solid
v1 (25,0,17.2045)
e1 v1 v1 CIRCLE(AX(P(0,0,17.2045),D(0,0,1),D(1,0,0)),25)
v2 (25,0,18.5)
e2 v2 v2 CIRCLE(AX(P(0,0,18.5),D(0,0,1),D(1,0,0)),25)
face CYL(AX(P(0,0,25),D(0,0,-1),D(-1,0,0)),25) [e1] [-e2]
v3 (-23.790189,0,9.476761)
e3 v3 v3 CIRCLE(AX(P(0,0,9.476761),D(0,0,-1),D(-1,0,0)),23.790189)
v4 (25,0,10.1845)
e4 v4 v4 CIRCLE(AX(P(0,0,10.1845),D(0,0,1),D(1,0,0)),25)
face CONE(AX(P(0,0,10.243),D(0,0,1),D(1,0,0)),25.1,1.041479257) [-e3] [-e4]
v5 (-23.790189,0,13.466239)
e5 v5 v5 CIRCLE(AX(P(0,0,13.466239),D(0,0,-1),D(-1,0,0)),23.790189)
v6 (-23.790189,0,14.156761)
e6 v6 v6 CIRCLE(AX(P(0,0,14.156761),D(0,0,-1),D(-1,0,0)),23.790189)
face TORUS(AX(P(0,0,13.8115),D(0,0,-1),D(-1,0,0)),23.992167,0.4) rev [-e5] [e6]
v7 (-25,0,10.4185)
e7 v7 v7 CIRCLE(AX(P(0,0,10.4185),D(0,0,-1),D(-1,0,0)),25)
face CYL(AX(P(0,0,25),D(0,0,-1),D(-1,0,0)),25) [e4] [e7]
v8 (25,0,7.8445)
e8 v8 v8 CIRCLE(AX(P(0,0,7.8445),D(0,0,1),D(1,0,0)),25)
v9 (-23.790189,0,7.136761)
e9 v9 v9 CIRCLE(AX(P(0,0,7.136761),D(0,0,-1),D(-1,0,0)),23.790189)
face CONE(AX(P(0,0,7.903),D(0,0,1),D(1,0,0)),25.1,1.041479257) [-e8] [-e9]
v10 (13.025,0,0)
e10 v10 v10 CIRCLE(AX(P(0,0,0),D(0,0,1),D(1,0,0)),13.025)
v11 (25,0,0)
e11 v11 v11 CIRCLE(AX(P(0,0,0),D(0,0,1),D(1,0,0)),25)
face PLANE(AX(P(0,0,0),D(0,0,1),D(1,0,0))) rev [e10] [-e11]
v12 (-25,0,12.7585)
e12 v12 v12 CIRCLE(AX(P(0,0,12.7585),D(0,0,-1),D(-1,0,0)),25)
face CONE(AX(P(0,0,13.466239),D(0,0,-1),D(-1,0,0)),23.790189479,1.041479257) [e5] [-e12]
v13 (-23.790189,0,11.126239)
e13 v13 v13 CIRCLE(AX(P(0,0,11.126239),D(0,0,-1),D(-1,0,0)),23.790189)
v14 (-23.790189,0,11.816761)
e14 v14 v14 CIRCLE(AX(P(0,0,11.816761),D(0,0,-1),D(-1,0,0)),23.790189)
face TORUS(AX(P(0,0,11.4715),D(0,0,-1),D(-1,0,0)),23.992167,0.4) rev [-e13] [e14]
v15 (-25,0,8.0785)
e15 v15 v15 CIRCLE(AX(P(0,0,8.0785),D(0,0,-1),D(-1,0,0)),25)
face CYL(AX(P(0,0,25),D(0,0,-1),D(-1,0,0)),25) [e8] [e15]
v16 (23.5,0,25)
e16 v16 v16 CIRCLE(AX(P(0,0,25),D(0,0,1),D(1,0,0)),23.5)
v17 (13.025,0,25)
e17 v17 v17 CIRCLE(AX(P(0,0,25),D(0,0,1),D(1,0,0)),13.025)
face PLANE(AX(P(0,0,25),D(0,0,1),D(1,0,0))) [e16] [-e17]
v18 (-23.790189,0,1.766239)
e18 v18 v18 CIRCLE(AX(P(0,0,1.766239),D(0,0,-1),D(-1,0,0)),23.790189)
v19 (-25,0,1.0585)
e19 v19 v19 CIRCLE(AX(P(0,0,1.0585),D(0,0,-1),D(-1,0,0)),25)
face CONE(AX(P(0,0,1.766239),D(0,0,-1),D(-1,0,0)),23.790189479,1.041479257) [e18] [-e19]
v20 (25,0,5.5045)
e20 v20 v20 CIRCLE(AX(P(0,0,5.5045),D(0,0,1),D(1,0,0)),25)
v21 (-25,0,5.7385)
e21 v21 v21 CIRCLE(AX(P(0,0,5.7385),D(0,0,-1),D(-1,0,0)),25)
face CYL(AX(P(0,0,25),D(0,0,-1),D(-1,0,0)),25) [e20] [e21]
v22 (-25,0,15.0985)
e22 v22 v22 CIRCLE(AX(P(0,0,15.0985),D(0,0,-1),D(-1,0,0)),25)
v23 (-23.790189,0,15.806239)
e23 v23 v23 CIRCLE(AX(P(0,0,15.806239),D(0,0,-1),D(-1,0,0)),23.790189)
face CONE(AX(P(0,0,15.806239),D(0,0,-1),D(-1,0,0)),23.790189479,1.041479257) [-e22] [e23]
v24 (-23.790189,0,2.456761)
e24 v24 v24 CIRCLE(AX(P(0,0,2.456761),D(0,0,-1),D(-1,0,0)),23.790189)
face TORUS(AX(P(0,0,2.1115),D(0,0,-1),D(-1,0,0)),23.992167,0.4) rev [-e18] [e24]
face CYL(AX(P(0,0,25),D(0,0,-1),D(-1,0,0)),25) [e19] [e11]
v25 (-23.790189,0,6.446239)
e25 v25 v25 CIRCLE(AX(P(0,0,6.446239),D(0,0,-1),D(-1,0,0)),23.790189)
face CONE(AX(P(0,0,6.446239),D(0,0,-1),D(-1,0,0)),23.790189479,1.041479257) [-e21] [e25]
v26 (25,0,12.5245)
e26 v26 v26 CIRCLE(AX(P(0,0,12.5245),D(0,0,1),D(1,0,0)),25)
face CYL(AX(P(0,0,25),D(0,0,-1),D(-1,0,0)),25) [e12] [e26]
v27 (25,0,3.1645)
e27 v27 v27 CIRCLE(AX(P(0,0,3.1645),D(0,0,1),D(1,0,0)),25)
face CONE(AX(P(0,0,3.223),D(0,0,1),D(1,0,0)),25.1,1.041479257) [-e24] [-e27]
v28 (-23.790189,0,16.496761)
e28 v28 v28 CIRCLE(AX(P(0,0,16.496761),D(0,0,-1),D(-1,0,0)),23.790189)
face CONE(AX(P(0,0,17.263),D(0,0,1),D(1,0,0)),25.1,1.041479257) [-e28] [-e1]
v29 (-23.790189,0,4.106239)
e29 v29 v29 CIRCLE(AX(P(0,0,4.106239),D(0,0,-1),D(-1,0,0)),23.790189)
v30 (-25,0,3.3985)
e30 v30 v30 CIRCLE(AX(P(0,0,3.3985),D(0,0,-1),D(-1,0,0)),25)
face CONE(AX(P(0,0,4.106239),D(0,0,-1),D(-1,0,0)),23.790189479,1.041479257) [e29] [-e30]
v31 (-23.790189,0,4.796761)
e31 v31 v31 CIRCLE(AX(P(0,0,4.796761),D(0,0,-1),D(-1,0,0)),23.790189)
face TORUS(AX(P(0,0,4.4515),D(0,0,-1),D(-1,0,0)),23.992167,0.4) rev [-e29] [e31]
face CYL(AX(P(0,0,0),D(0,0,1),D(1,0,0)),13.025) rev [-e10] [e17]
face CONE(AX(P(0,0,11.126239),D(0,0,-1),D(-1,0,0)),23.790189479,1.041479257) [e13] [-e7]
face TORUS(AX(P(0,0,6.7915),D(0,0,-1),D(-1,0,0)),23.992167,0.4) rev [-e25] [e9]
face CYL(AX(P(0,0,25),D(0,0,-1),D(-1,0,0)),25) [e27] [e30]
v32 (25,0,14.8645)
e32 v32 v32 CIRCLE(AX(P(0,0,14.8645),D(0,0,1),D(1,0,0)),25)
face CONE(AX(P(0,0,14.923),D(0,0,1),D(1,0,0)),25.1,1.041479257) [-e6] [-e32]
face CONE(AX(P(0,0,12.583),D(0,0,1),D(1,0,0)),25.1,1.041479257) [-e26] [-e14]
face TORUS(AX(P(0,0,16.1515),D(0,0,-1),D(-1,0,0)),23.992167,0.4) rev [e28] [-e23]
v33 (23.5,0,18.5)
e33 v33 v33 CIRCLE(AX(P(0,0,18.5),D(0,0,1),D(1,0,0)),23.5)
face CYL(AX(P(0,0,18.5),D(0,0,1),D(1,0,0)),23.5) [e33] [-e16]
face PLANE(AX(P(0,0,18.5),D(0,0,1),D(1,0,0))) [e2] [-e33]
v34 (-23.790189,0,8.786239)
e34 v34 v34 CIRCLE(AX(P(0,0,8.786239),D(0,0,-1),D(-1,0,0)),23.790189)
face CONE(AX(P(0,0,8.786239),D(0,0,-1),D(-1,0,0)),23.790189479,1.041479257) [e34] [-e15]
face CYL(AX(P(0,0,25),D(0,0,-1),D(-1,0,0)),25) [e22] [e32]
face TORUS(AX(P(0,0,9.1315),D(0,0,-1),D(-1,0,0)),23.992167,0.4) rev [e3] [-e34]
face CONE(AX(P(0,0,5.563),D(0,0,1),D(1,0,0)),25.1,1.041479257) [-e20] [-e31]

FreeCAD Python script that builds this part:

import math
import FreeCAD as App
import Part
import Sketcher

doc = App.newDocument("Part")
body = doc.addObject("PartDesign::Body", "Body")

# Sketch on XY plane
sketch1 = doc.addObject("Sketcher::SketchObject", "Sketch")
body.addObject(sketch1)
sketch1.AttachmentSupport = (doc.XY_Plane, [""])
sketch1.MapMode = "FlatFace"
sketch1.addGeometry(Part.Circle(App.Vector(0, 0, 0), App.Vector(0, 0, 1), 25), False)
sketch1.addConstraint(Sketcher.Constraint("Coincident", 0, 3, -1, 1))
sketch1.addConstraint(Sketcher.Constraint("Diameter", 0, 50.0))
pad1 = doc.addObject("PartDesign::Pad", "Pad")
body.addObject(pad1)
pad1.Profile = sketch1
pad1.Length = 25

# Sketch on XY plane
sketch2 = doc.addObject("Sketcher::SketchObject", "Sketch001")
body.addObject(sketch2)
sketch2.AttachmentSupport = (doc.XY_Plane, [""])
sketch2.MapMode = "FlatFace"
sketch2.AttachmentOffset = App.Placement(App.Vector(0, 0, 25), App.Rotation())
sketch2.addGeometry(Part.Circle(App.Vector(0, 0, 0), App.Vector(0, 0, 1), 25), False)
sketch2.addGeometry(Part.Circle(App.Vector(0, 0, 0), App.Vector(0, 0, 1), 24), False)
sketch2.addConstraint(Sketcher.Constraint("Coincident", 0, 3, -1, 1))
sketch2.addConstraint(Sketcher.Constraint("Coincident", 1, 3, -1, 1))
sketch2.addConstraint(Sketcher.Constraint("Diameter", 0, 50.0))
sketch2.addConstraint(Sketcher.Constraint("Diameter", 1, 47.0))
pocket1 = doc.addObject("PartDesign::Pocket", "Pocket")
body.addObject(pocket1)
pocket1.Profile = sketch2
pocket1.Length = 6.5

# Sketch on XY plane
sketch3 = doc.addObject("Sketcher::SketchObject", "Sketch002")
body.addObject(sketch3)
sketch3.AttachmentSupport = (doc.XY_Plane, [""])
sketch3.MapMode = "FlatFace"
sketch3.AttachmentOffset = App.Placement(App.Vector(0, 0, 25), App.Rotation())
sketch3.addGeometry(Part.Circle(App.Vector(0, 0, 0), App.Vector(0, 0, 1), 13), False)
sketch3.addConstraint(Sketcher.Constraint("Coincident", 0, 3, -1, 1))
sketch3.addConstraint(Sketcher.Constraint("Diameter", 0, 26.05))
pocket2 = doc.addObject("PartDesign::Pocket", "Pocket001")
body.addObject(pocket2)
pocket2.Profile = sketch3
pocket2.Length = 25

# Sketch on YZ plane
sketch4 = doc.addObject("Sketcher::SketchObject", "Sketch003")
body.addObject(sketch4)
sketch4.AttachmentSupport = (doc.YZ_Plane, [""])
sketch4.MapMode = "FlatFace"
sketch4.addGeometry(Part.LineSegment(App.Vector(25.1, 1, 0), App.Vector(25.1, 3.22, 0)), False)
sketch4.addGeometry(Part.LineSegment(App.Vector(25.1, 3.22, 0), App.Vector(23.79, 2.46, 0)), False)
sketch4.addGeometry(Part.ArcOfCircle(Part.Circle(App.Vector(23.99, 2.11, 0), App.Vector(0, 0, 1), 0.4), math.radians(120), math.radians(240)), False)
sketch4.addGeometry(Part.LineSegment(App.Vector(23.79, 1.77, 0), App.Vector(25.1, 1, 0)), False)
sketch4.addGeometry(Part.LineSegment(App.Vector(25.1, 3.34, 0), App.Vector(25.1, 5.56, 0)), False)
sketch4.addGeometry(Part.LineSegment(App.Vector(25.1, 5.56, 0), App.Vector(23.79, 4.8, 0)), False)
sketch4.addGeometry(Part.ArcOfCircle(Part.Circle(App.Vector(23.99, 4.45, 0), App.Vector(0, 0, 1), 0.4), math.radians(120), math.radians(240)), False)
sketch4.addGeometry(Part.LineSegment(App.Vector(23.79, 4.11, 0), App.Vector(25.1, 3.34, 0)), False)
sketch4.addGeometry(Part.LineSegment(App.Vector(25.1, 5.68, 0), App.Vector(25.1, 7.9, 0)), False)
sketch4.addGeometry(Part.LineSegment(App.Vector(25.1, 7.9, 0), App.Vector(23.79, 7.14, 0)), False)
sketch4.addGeometry(Part.ArcOfCircle(Part.Circle(App.Vector(23.99, 6.79, 0), App.Vector(0, 0, 1), 0.4), math.radians(120), math.radians(240)), False)
sketch4.addGeometry(Part.LineSegment(App.Vector(23.79, 6.45, 0), App.Vector(25.1, 5.68, 0)), False)
sketch4.addGeometry(Part.LineSegment(App.Vector(25.1, 8.02, 0), App.Vector(25.1, 10.24, 0)), False)
sketch4.addGeometry(Part.LineSegment(App.Vector(25.1, 10.24, 0), App.Vector(23.79, 9.48, 0)), False)
sketch4.addGeometry(Part.ArcOfCircle(Part.Circle(App.Vector(23.99, 9.13, 0), App.Vector(0, 0, 1), 0.4), math.radians(120), math.radians(240)), False)
sketch4.addGeometry(Part.LineSegment(App.Vector(23.79, 8.79, 0), App.Vector(25.1, 8.02, 0)), False)
sketch4.addGeometry(Part.LineSegment(App.Vector(25.1, 10.36, 0), App.Vector(25.1, 12.58, 0)), False)
sketch4.addGeometry(Part.LineSegment(App.Vector(25.1, 12.58, 0), App.Vector(23.79, 11.82, 0)), False)
sketch4.addGeometry(Part.ArcOfCircle(Part.Circle(App.Vector(23.99, 11.47, 0), App.Vector(0, 0, 1), 0.4), math.radians(120), math.radians(240)), False)
sketch4.addGeometry(Part.LineSegment(App.Vector(23.79, 11.13, 0), App.Vector(25.1, 10.36, 0)), False)
sketch4.addGeometry(Part.LineSegment(App.Vector(25.1, 12.7, 0), App.Vector(25.1, 14.92, 0)), False)
sketch4.addGeometry(Part.LineSegment(App.Vector(25.1, 14.92, 0), App.Vector(23.79, 14.16, 0)), False)
sketch4.addGeometry(Part.ArcOfCircle(Part.Circle(App.Vector(23.99, 13.81, 0), App.Vector(0, 0, 1), 0.4), math.radians(120), math.radians(240)), False)
sketch4.addGeometry(Part.LineSegment(App.Vector(23.79, 13.47, 0), App.Vector(25.1, 12.7, 0)), False)
sketch4.addGeometry(Part.LineSegment(App.Vector(25.1, 15.04, 0), App.Vector(25.1, 17.26, 0)), False)
sketch4.addGeometry(Part.LineSegment(App.Vector(25.1, 17.26, 0), App.Vector(23.79, 16.5, 0)), False)
sketch4.addGeometry(Part.ArcOfCircle(Part.Circle(App.Vector(23.99, 16.15, 0), App.Vector(0, 0, 1), 0.4), math.radians(120), math.radians(240)), False)
sketch4.addGeometry(Part.LineSegment(App.Vector(23.79, 15.81, 0), App.Vector(25.1, 15.04, 0)), False)
sketch4.addConstraint(Sketcher.Constraint("Coincident", 0, 2, 1, 1))
sketch4.addConstraint(Sketcher.Constraint("Tangent", 1, 2, 2, 1))
sketch4.addConstraint(Sketcher.Constraint("Tangent", 2, 2, 3, 1))
sketch4.addConstraint(Sketcher.Constraint("Coincident", 3, 2, 0, 1))
sketch4.addConstraint(Sketcher.Constraint("Coincident", 4, 2, 5, 1))
sketch4.addConstraint(Sketcher.Constraint("Tangent", 5, 2, 6, 1))
sketch4.addConstraint(Sketcher.Constraint("Tangent", 6, 2, 7, 1))
sketch4.addConstraint(Sketcher.Constraint("Coincident", 7, 2, 4, 1))
sketch4.addConstraint(Sketcher.Constraint("Coincident", 8, 2, 9, 1))
sketch4.addConstraint(Sketcher.Constraint("Tangent", 9, 2, 10, 1))
sketch4.addConstraint(Sketcher.Constraint("Tangent", 10, 2, 11, 1))
sketch4.addConstraint(Sketcher.Constraint("Coincident", 11, 2, 8, 1))
sketch4.addConstraint(Sketcher.Constraint("Coincident", 12, 2, 13, 1))
sketch4.addConstraint(Sketcher.Constraint("Tangent", 13, 2, 14, 1))
sketch4.addConstraint(Sketcher.Constraint("Tangent", 14, 2, 15, 1))
sketch4.addConstraint(Sketcher.Constraint("Coincident", 15, 2, 12, 1))
sketch4.addConstraint(Sketcher.Constraint("Coincident", 16, 2, 17, 1))
sketch4.addConstraint(Sketcher.Constraint("Tangent", 17, 2, 18, 1))
sketch4.addConstraint(Sketcher.Constraint("Tangent", 18, 2, 19, 1))
sketch4.addConstraint(Sketcher.Constraint("Coincident", 19, 2, 16, 1))
sketch4.addConstraint(Sketcher.Constraint("Coincident", 20, 2, 21, 1))
sketch4.addConstraint(Sketcher.Constraint("Tangent", 21, 2, 22, 1))
sketch4.addConstraint(Sketcher.Constraint("Tangent", 22, 2, 23, 1))
sketch4.addConstraint(Sketcher.Constraint("Coincident", 23, 2, 20, 1))
sketch4.addConstraint(Sketcher.Constraint("Coincident", 24, 2, 25, 1))
sketch4.addConstraint(Sketcher.Constraint("Tangent", 25, 2, 26, 1))
sketch4.addConstraint(Sketcher.Constraint("Tangent", 26, 2, 27, 1))
sketch4.addConstraint(Sketcher.Constraint("Coincident", 27, 2, 24, 1))
sketch4.addConstraint(Sketcher.Constraint("Vertical", 0))
sketch4.addConstraint(Sketcher.Constraint("Vertical", 4))
sketch4.addConstraint(Sketcher.Constraint("Vertical", 8))
sketch4.addConstraint(Sketcher.Constraint("Vertical", 12))
sketch4.addConstraint(Sketcher.Constraint("Vertical", 16))
sketch4.addConstraint(Sketcher.Constraint("Vertical", 20))
sketch4.addConstraint(Sketcher.Constraint("Vertical", 24))
sketch4.addConstraint(Sketcher.Constraint("Equal", 2, 6))
sketch4.addConstraint(Sketcher.Constraint("Equal", 6, 10))
sketch4.addConstraint(Sketcher.Constraint("Equal", 10, 14))
sketch4.addConstraint(Sketcher.Constraint("Equal", 14, 18))
sketch4.addConstraint(Sketcher.Constraint("Equal", 18, 22))
sketch4.addConstraint(Sketcher.Constraint("Equal", 22, 26))
sketch4.addConstraint(Sketcher.Constraint("Parallel", 1, 5))
sketch4.addConstraint(Sketcher.Constraint("Parallel", 3, 7))
sketch4.addConstraint(Sketcher.Constraint("Parallel", 5, 9))
sketch4.addConstraint(Sketcher.Constraint("Parallel", 7, 11))
sketch4.addConstraint(Sketcher.Constraint("Parallel", 9, 13))
sketch4.addConstraint(Sketcher.Constraint("Parallel", 11, 15))
sketch4.addConstraint(Sketcher.Constraint("Parallel", 13, 17))
sketch4.addConstraint(Sketcher.Constraint("Parallel", 15, 19))
sketch4.addConstraint(Sketcher.Constraint("Parallel", 17, 21))
sketch4.addConstraint(Sketcher.Constraint("Parallel", 19, 23))
sketch4.addConstraint(Sketcher.Constraint("Parallel", 21, 25))
sketch4.addConstraint(Sketcher.Constraint("Parallel", 23, 27))
sketch4.addConstraint(Sketcher.Constraint("Vertical", 2, 3, 6, 3))
sketch4.addConstraint(Sketcher.Constraint("Vertical", 6, 3, 10, 3))
sketch4.addConstraint(Sketcher.Constraint("Vertical", 10, 3, 14, 3))
sketch4.addConstraint(Sketcher.Constraint("Vertical", 14, 3, 18, 3))
sketch4.addConstraint(Sketcher.Constraint("Vertical", 18, 3, 22, 3))
sketch4.addConstraint(Sketcher.Constraint("Vertical", 22, 3, 26, 3))
sketch4.addConstraint(Sketcher.Constraint("Vertical", 1, 2, 2, 2))
sketch4.addConstraint(Sketcher.Constraint("Vertical", 3, 2, 4, 2))
sketch4.addConstraint(Sketcher.Constraint("Vertical", 7, 2, 8, 2))
sketch4.addConstraint(Sketcher.Constraint("Vertical", 11, 2, 12, 2))
sketch4.addConstraint(Sketcher.Constraint("Vertical", 15, 2, 16, 2))
sketch4.addConstraint(Sketcher.Constraint("Vertical", 19, 2, 20, 2))
sketch4.addConstraint(Sketcher.Constraint("Vertical", 23, 2, 24, 2))
sketch4.addConstraint(Sketcher.Constraint("Radius", 2, 0.4))
sketch4.addConstraint(Sketcher.Constraint("DistanceY", -1, 1, 3, 2, 1.0))
sketch4.addConstraint(Sketcher.Constraint("DistanceX", -1, 1, 0, 2, 25.1))
sketch4.addConstraint(Sketcher.Constraint("DistanceY", -1, 1, 23, 2, 12.7))
sketch4.addConstraint(Sketcher.Constraint("DistanceY", 6, 3, 26, 3, 11.7))
sketch4.addConstraint(Sketcher.Constraint("DistanceY", 0, 1, 0, 2, 2.223))
sketch4.addConstraint(Sketcher.Constraint("DistanceY", -1, 1, 7, 2, 3.34))
sketch4.addConstraint(Sketcher.Constraint("DistanceY", -1, 1, 11, 2, 5.68))
sketch4.addConstraint(Sketcher.Constraint("DistanceY", -1, 1, 15, 2, 8.02))
sketch4.addConstraint(Sketcher.Constraint("DistanceY", -1, 1, 19, 2, 10.36))
sketch4.addConstraint(Sketcher.Constraint("DistanceX", -1, 1, 1, 2, 23.790189))
groove = doc.addObject("PartDesign::Groove", "Groove")
body.addObject(groove)
groove.Profile = sketch4
groove.ReferenceAxis = (sketch4, ["V_Axis"])
groove.Angle = 360

doc.recompute()
